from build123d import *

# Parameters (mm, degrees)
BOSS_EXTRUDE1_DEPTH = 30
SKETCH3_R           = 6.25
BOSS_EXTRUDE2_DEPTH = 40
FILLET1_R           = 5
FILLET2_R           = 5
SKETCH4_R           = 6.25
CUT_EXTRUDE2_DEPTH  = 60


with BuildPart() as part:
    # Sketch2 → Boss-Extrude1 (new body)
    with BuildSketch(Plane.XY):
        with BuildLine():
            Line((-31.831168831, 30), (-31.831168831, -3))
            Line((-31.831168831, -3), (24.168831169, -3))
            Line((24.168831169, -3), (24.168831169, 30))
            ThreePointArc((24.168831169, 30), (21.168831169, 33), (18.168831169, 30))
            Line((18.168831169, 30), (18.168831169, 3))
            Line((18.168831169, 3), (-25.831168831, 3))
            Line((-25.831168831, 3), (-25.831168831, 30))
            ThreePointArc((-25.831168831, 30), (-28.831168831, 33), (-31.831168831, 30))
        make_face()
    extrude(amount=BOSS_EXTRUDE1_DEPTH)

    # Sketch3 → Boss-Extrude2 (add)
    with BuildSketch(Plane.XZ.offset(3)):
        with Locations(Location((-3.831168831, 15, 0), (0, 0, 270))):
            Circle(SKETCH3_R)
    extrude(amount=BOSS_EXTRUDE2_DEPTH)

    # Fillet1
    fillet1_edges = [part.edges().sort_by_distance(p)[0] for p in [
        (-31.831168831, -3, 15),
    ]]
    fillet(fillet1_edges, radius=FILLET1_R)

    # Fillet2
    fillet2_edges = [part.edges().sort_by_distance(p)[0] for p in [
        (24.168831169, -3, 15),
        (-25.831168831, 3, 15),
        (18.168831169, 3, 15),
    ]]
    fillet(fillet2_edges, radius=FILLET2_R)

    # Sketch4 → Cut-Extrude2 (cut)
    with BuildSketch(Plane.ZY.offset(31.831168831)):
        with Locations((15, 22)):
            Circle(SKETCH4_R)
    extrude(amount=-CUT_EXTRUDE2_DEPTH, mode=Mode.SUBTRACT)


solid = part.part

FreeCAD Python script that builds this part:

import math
import FreeCAD as App
import Part
import Sketcher

V = App.Vector


def edges_at(feature, points):
    """Names of the edges that pass closest to the given points."""
    edges = feature.Shape.Edges
    near = lambda p: min(range(len(edges)), key=lambda i: edges[i].distToShape(Part.Vertex(*p))[0])
    return sorted({f"Edge{near(p) + 1}" for p in points})

doc = App.newDocument("Part")
params = doc.addObject("Spreadsheet::Sheet", "Params")
for row, (alias, value) in enumerate([
    ("sketch1_radius", "3 mm"),
    ("sketch1_width", "56 mm"),
    ("sketch1_height", "33 mm"),
    ("sketch1_height2", "27 mm"),
    ("pad1_length", "30 mm"),
    ("sketch2_diameter", "12.5 mm"),
    ("pad2_length", "40 mm"),
    ("fillet_radius", "5 mm"),
    ("fillet2_radius", "5 mm"),
    ("sketch3_diameter", "12.5 mm"),
    ("pocket1_length", "60 mm"),
], start=1):
    params.set(f"A{row}", alias)
    params.set(f"B{row}", "=" + value)
    params.setAlias(f"B{row}", alias)

body = doc.addObject("PartDesign::Body", "Body")

# Sketch on XY plane
sketch1 = body.newObject("Sketcher::SketchObject", "Sketch")
sketch1.AttachmentSupport = (doc.getObject("XY_Plane"), [""])
sketch1.MapMode = "FlatFace"
sketch1.addGeometry([
    Part.LineSegment(V(-31.831169, 30, 0), V(-31.831169, -3, 0)),  # 0
    Part.LineSegment(V(-31.831169, -3, 0), V(24.168831, -3, 0)),  # 1
    Part.LineSegment(V(24.168831, -3, 0), V(24.168831, 30, 0)),  # 2
    Part.ArcOfCircle(Part.Circle(V(21.168831, 30, 0), V(0, 0, 1), 3), math.radians(0), math.radians(180)),  # 3
    Part.LineSegment(V(18.168831, 30, 0), V(18.168831, 3, 0)),  # 4
    Part.LineSegment(V(18.168831, 3, 0), V(-25.831169, 3, 0)),  # 5
    Part.LineSegment(V(-25.831169, 3, 0), V(-25.831169, 30, 0)),  # 6
    Part.ArcOfCircle(Part.Circle(V(-28.831169, 30, 0), V(0, 0, 1), 3), math.radians(0), math.radians(180)),  # 7
], False)
sketch1.addConstraint([
    Sketcher.Constraint("Coincident", 0, 2, 1, 1),
    Sketcher.Constraint("Coincident", 1, 2, 2, 1),
    Sketcher.Constraint("Tangent", 2, 2, 3, 1),
    Sketcher.Constraint("Tangent", 3, 2, 4, 1),
    Sketcher.Constraint("Coincident", 4, 2, 5, 1),
    Sketcher.Constraint("Coincident", 5, 2, 6, 1),
    Sketcher.Constraint("Tangent", 6, 2, 7, 1),
    Sketcher.Constraint("Tangent", 7, 2, 0, 1),
    Sketcher.Constraint("Vertical", 0),
    Sketcher.Constraint("Horizontal", 1),
    Sketcher.Constraint("Vertical", 2),
    Sketcher.Constraint("Vertical", 4),
    Sketcher.Constraint("Horizontal", 5),
    Sketcher.Constraint("Vertical", 6),
    Sketcher.Constraint("Equal", 3, 7),
    Sketcher.Constraint("Horizontal", 3, 3, 7, 3),
    Sketcher.Constraint("Radius", 3, 3.0),
    Sketcher.Constraint("DistanceX", 1, 1, 1, 2, 56.0),
    Sketcher.Constraint("DistanceY", 0, 2, 0, 1, 33.0),
    Sketcher.Constraint("DistanceY", 4, 2, 4, 1, 27.0),
    Sketcher.Constraint("DistanceY", -1, 1, 3, 3, 30.0),
    Sketcher.Constraint("DistanceX", -1, 1, 3, 3, 21.168831),
])
sketch1.setExpression("Constraints[16]", "Params.sketch1_radius")
sketch1.setExpression("Constraints[17]", "Params.sketch1_width")
sketch1.setExpression("Constraints[18]", "Params.sketch1_height")
sketch1.setExpression("Constraints[19]", "Params.sketch1_height2")
pad1 = body.newObject("PartDesign::Pad", "Pad")
pad1.Profile = sketch1
pad1.setExpression("Length", "Params.pad1_length")

# Sketch on XZ plane
sketch2 = body.newObject("Sketcher::SketchObject", "Sketch001")
sketch2.AttachmentSupport = (doc.getObject("XZ_Plane"), [""])
sketch2.MapMode = "FlatFace"
sketch2.AttachmentOffset = App.Placement(V(0, 0, 3), App.Rotation())
sketch2.addGeometry(Part.Circle(V(-3.831169, 15, 0), V(0, 0, 1), 6.25), False)
sketch2.addConstraint([
    Sketcher.Constraint("Diameter", 0, 12.5),
    Sketcher.Constraint("DistanceY", -1, 1, 0, 3, 15.0),
    Sketcher.Constraint("DistanceX", 0, 3, -1, 1, 3.831169),
])
sketch2.setExpression("Constraints[0]", "Params.sketch2_diameter")
pad2 = body.newObject("PartDesign::Pad", "Pad001")
pad2.Profile = sketch2
pad2.setExpression("Length", "Params.pad2_length")
doc.recompute()

fillet = body.newObject("PartDesign::Fillet", "Fillet")
fillet.Base = (pad2, edges_at(pad2, [(-31.831, -3, 15)]))
fillet.setExpression("Radius", "Params.fillet_radius")
doc.recompute()

fillet2 = body.newObject("PartDesign::Fillet", "Fillet001")
fillet2.Base = (fillet, edges_at(fillet, [(24.169, -3, 15), (-25.831, 3, 15), (18.169, 3, 15)]))
fillet2.setExpression("Radius", "Params.fillet2_radius")

# Sketch on YZ plane
sketch3 = body.newObject("Sketcher::SketchObject", "Sketch002")
sketch3.AttachmentSupport = (doc.getObject("YZ_Plane"), [""])
sketch3.MapMode = "FlatFace"
sketch3.AttachmentOffset = App.Placement(V(0, 0, -31.831169), App.Rotation())
sketch3.addGeometry(Part.Circle(V(22, 15, 0), V(0, 0, 1), 6.25), False)
sketch3.addConstraint([
    Sketcher.Constraint("Diameter", 0, 12.5),
    Sketcher.Constraint("DistanceX", -1, 1, 0, 3, 22.0),
    Sketcher.Constraint("DistanceY", -1, 1, 0, 3, 15.0),
])
sketch3.setExpression("Constraints[0]", "Params.sketch3_diameter")
pocket1 = body.newObject("PartDesign::Pocket", "Pocket")
pocket1.Profile = sketch3
pocket1.setExpression("Length", "Params.pocket1_length")
pocket1.Reversed = True

doc.recompute()
